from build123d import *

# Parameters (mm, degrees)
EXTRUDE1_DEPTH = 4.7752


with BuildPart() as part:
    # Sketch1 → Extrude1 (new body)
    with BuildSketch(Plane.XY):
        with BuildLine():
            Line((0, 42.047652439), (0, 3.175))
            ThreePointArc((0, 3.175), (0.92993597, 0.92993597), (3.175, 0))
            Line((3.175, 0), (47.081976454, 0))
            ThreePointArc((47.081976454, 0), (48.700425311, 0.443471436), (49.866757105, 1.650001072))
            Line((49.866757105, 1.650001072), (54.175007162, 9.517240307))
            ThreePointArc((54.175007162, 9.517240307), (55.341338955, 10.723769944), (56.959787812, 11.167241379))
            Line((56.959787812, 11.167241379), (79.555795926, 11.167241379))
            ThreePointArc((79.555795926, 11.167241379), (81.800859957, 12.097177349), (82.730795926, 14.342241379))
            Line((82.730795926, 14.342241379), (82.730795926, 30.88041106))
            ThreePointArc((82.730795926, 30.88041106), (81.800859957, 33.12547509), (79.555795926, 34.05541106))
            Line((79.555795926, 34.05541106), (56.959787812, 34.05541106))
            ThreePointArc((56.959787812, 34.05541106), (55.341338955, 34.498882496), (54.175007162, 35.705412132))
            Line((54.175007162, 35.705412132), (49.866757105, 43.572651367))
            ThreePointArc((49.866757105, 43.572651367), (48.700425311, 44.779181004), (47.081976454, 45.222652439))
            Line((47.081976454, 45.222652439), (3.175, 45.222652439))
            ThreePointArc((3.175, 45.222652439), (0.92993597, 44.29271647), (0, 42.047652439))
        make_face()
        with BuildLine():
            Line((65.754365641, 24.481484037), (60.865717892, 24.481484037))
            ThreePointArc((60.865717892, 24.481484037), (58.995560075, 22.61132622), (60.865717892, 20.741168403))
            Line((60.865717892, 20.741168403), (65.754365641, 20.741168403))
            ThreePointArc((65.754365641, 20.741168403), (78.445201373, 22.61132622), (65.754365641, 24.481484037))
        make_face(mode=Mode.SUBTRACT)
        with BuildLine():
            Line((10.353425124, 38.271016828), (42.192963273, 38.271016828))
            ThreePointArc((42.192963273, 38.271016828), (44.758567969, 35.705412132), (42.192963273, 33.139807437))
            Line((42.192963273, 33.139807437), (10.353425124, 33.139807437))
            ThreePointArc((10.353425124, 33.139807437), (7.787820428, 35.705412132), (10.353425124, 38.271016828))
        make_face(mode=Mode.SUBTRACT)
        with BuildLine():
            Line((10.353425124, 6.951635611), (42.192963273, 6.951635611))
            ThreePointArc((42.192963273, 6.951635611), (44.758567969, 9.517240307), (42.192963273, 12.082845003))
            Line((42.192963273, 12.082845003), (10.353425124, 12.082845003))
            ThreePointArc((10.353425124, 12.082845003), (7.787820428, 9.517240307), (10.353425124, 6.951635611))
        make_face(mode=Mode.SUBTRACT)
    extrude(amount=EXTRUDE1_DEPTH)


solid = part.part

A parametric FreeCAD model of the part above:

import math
import FreeCAD as App
import Part
import Sketcher

V = App.Vector
Q = App.Units.Quantity

doc = App.newDocument("Part")
body = doc.addObject("PartDesign::Body", "Body")

# Sketch on XY plane
sketch1 = doc.addObject("Sketcher::SketchObject", "Sketch")
body.addObject(sketch1)
sketch1.AttachmentSupport = (doc.XY_Plane, [""])
sketch1.MapMode = "FlatFace"
sketch1.addGeometry([
    Part.LineSegment(V(0, 42, 0), V(0, 3.2, 0)),  # 0
    Part.ArcOfCircle(Part.Circle(V(3.2, 3.2, 0), V(0, 0, 1), 3.2), math.radians(-180), math.radians(-90)),  # 1
    Part.LineSegment(V(3.2, 0, 0), V(47.1, 0, 0)),  # 2
    Part.ArcOfCircle(Part.Circle(V(47.1, 3.2, 0), V(0, 0, 1), 3.2), math.radians(-90), math.radians(-29)),  # 3
    Part.LineSegment(V(49.9, 1.7, 0), V(54.2, 9.5, 0)),  # 4
    Part.ArcOfCircle(Part.Circle(V(57, 8, 0), V(0, 0, 1), 3.2), math.radians(90), math.radians(151)),  # 5
    Part.LineSegment(V(57, 11.2, 0), V(79.6, 11.2, 0)),  # 6
    Part.ArcOfCircle(Part.Circle(V(79.6, 14.3, 0), V(0, 0, 1), 3.2), math.radians(-90), math.radians(0)),  # 7
    Part.LineSegment(V(82.7, 14.3, 0), V(82.7, 30.9, 0)),  # 8
    Part.ArcOfCircle(Part.Circle(V(79.6, 30.9, 0), V(0, 0, 1), 3.2), math.radians(0), math.radians(90)),  # 9
    Part.LineSegment(V(79.6, 34.1, 0), V(57, 34.1, 0)),  # 10
    Part.ArcOfCircle(Part.Circle(V(57, 37.2, 0), V(0, 0, 1), 3.2), math.radians(-151), math.radians(-90)),  # 11
    Part.LineSegment(V(54.2, 35.7, 0), V(49.9, 43.6, 0)),  # 12
    Part.ArcOfCircle(Part.Circle(V(47.1, 42, 0), V(0, 0, 1), 3.2), math.radians(29), math.radians(90)),  # 13
    Part.LineSegment(V(47.1, 45.2, 0), V(3.2, 45.2, 0)),  # 14
    Part.ArcOfCircle(Part.Circle(V(3.2, 42, 0), V(0, 0, 1), 3.2), math.radians(90), math.radians(180)),  # 15
    Part.LineSegment(V(42.2, 7, 0), V(10.4, 7, 0)),  # 16
    Part.ArcOfCircle(Part.Circle(V(10.4, 9.5, 0), V(0, 0, 1), 2.6), math.radians(90), math.radians(270)),  # 17
    Part.LineSegment(V(10.4, 12.1, 0), V(42.2, 12.1, 0)),  # 18
    Part.ArcOfCircle(Part.Circle(V(42.2, 9.5, 0), V(0, 0, 1), 2.6), math.radians(-90), math.radians(90)),  # 19
    Part.ArcOfCircle(Part.Circle(V(10.4, 35.7, 0), V(0, 0, 1), 2.6), math.radians(90), math.radians(270)),  # 20
    Part.LineSegment(V(10.4, 38.3, 0), V(42.2, 38.3, 0)),  # 21
    Part.ArcOfCircle(Part.Circle(V(42.2, 35.7, 0), V(0, 0, 1), 2.6), math.radians(-90), math.radians(90)),  # 22
    Part.LineSegment(V(42.2, 33.1, 0), V(10.4, 33.1, 0)),  # 23
    Part.LineSegment(V(60.9, 24.5, 0), V(65.8, 24.5, 0)),  # 24
    Part.ArcOfCircle(Part.Circle(V(72, 22.6, 0), V(0, 0, 1), 6.5), math.radians(-163), math.radians(163)),  # 25
    Part.LineSegment(V(65.8, 20.7, 0), V(60.9, 20.7, 0)),  # 26
    Part.ArcOfCircle(Part.Circle(V(60.9, 22.6, 0), V(0, 0, 1), 1.9), math.radians(90), math.radians(270)),  # 27
], False)
sketch1.addConstraint([
    Sketcher.Constraint("Tangent", 0, 2, 1, 1),
    Sketcher.Constraint("Tangent", 1, 2, 2, 1),
    Sketcher.Constraint("Tangent", 2, 2, 3, 1),
    Sketcher.Constraint("Tangent", 3, 2, 4, 1),
    Sketcher.Constraint("Tangent", 4, 2, 5, 2),
    Sketcher.Constraint("Tangent", 5, 1, 6, 1),
    Sketcher.Constraint("Tangent", 6, 2, 7, 1),
    Sketcher.Constraint("Tangent", 7, 2, 8, 1),
    Sketcher.Constraint("Tangent", 8, 2, 9, 1),
    Sketcher.Constraint("Tangent", 9, 2, 10, 1),
    Sketcher.Constraint("Tangent", 10, 2, 11, 2),
    Sketcher.Constraint("Tangent", 11, 1, 12, 1),
    Sketcher.Constraint("Tangent", 12, 2, 13, 1),
    Sketcher.Constraint("Tangent", 13, 2, 14, 1),
    Sketcher.Constraint("Tangent", 14, 2, 15, 1),
    Sketcher.Constraint("Tangent", 15, 2, 0, 1),
    Sketcher.Constraint("Tangent", 16, 2, 17, 2),
    Sketcher.Constraint("Tangent", 17, 1, 18, 1),
    Sketcher.Constraint("Tangent", 18, 2, 19, 2),
    Sketcher.Constraint("Tangent", 19, 1, 16, 1),
    Sketcher.Constraint("Tangent", 20, 1, 21, 1),
    Sketcher.Constraint("Tangent", 21, 2, 22, 2),
    Sketcher.Constraint("Tangent", 22, 1, 23, 1),
    Sketcher.Constraint("Tangent", 23, 2, 20, 2),
    Sketcher.Constraint("Coincident", 24, 2, 25, 2),
    Sketcher.Constraint("Coincident", 25, 1, 26, 1),
    Sketcher.Constraint("Tangent", 26, 2, 27, 2),
    Sketcher.Constraint("Tangent", 27, 1, 24, 1),
    Sketcher.Constraint("Vertical", 0),
    Sketcher.Constraint("Horizontal", 2),
    Sketcher.Constraint("Horizontal", 6),
    Sketcher.Constraint("Vertical", 8),
    Sketcher.Constraint("Horizontal", 10),
    Sketcher.Constraint("Horizontal", 14),
    Sketcher.Constraint("Horizontal", 16),
    Sketcher.Constraint("Horizontal", 18),
    Sketcher.Constraint("Horizontal", 21),
    Sketcher.Constraint("Horizontal", 23),
    Sketcher.Constraint("Horizontal", 24),
    Sketcher.Constraint("Horizontal", 26),
    Sketcher.Constraint("Equal", 1, 3),
    Sketcher.Constraint("Equal", 3, 5),
    Sketcher.Constraint("Equal", 5, 7),
    Sketcher.Constraint("Equal", 7, 9),
    Sketcher.Constraint("Equal", 9, 11),
    Sketcher.Constraint("Equal", 11, 13),
    Sketcher.Constraint("Equal", 13, 15),
    Sketcher.Constraint("Equal", 19, 20),
    Sketcher.Constraint("PointOnObject", 0, 2, -2),
    Sketcher.Constraint("PointOnObject", 1, 2, -1),
    Sketcher.Constraint("Horizontal", 25, 3, 27, 3),
    Sketcher.Constraint("Horizontal", 19, 3, 4, 2),
    Sketcher.Constraint("Horizontal", 22, 3, 11, 1),
    Sketcher.Constraint("Vertical", 5, 3, 11, 3),
    Sketcher.Constraint("Vertical", 3, 3, 13, 3),
    Sketcher.Constraint("Vertical", 17, 3, 20, 3),
    Sketcher.Constraint("Vertical", 19, 3, 22, 3),
    Sketcher.Constraint("Vertical", 4, 2, 11, 1),
    Sketcher.Constraint("Radius", 1, Q("0.125 in")),
    Sketcher.Constraint("Radius", 17, 2.565605),
    Sketcher.Constraint("Radius", 25, 6.483214),
    Sketcher.Constraint("Radius", 27, 1.870158),
    Sketcher.Constraint("DistanceX", 6, 1, 6, 2, 22.596008),
    Sketcher.Constraint("DistanceX", 16, 2, 16, 1, 31.839538),
    Sketcher.Constraint("DistanceY", 8, 1, 8, 2, 16.53817),
    Sketcher.Constraint("DistanceY", -1, 1, 3, 2, 1.650001),
    Sketcher.Constraint("DistanceX", 5, 3, 25, 3, 15.0022),
    Sketcher.Constraint("Distance", 4, 8.969642),
    Sketcher.Constraint("DistanceX", 2, 1, 2, 2, 43.906976),
    Sketcher.Constraint("DistanceX", 24, 1, 24, 2, 4.888648),
    Sketcher.Constraint("DistanceY", -1, 1, 25, 1, 20.741168),
    Sketcher.Constraint("DistanceX", 17, 3, 3, 3, 36.728551),
])
pad1 = doc.addObject("PartDesign::Pad", "Pad")
body.addObject(pad1)
pad1.Profile = sketch1
pad1.Length = Q("0.188 in")

doc.recompute()
